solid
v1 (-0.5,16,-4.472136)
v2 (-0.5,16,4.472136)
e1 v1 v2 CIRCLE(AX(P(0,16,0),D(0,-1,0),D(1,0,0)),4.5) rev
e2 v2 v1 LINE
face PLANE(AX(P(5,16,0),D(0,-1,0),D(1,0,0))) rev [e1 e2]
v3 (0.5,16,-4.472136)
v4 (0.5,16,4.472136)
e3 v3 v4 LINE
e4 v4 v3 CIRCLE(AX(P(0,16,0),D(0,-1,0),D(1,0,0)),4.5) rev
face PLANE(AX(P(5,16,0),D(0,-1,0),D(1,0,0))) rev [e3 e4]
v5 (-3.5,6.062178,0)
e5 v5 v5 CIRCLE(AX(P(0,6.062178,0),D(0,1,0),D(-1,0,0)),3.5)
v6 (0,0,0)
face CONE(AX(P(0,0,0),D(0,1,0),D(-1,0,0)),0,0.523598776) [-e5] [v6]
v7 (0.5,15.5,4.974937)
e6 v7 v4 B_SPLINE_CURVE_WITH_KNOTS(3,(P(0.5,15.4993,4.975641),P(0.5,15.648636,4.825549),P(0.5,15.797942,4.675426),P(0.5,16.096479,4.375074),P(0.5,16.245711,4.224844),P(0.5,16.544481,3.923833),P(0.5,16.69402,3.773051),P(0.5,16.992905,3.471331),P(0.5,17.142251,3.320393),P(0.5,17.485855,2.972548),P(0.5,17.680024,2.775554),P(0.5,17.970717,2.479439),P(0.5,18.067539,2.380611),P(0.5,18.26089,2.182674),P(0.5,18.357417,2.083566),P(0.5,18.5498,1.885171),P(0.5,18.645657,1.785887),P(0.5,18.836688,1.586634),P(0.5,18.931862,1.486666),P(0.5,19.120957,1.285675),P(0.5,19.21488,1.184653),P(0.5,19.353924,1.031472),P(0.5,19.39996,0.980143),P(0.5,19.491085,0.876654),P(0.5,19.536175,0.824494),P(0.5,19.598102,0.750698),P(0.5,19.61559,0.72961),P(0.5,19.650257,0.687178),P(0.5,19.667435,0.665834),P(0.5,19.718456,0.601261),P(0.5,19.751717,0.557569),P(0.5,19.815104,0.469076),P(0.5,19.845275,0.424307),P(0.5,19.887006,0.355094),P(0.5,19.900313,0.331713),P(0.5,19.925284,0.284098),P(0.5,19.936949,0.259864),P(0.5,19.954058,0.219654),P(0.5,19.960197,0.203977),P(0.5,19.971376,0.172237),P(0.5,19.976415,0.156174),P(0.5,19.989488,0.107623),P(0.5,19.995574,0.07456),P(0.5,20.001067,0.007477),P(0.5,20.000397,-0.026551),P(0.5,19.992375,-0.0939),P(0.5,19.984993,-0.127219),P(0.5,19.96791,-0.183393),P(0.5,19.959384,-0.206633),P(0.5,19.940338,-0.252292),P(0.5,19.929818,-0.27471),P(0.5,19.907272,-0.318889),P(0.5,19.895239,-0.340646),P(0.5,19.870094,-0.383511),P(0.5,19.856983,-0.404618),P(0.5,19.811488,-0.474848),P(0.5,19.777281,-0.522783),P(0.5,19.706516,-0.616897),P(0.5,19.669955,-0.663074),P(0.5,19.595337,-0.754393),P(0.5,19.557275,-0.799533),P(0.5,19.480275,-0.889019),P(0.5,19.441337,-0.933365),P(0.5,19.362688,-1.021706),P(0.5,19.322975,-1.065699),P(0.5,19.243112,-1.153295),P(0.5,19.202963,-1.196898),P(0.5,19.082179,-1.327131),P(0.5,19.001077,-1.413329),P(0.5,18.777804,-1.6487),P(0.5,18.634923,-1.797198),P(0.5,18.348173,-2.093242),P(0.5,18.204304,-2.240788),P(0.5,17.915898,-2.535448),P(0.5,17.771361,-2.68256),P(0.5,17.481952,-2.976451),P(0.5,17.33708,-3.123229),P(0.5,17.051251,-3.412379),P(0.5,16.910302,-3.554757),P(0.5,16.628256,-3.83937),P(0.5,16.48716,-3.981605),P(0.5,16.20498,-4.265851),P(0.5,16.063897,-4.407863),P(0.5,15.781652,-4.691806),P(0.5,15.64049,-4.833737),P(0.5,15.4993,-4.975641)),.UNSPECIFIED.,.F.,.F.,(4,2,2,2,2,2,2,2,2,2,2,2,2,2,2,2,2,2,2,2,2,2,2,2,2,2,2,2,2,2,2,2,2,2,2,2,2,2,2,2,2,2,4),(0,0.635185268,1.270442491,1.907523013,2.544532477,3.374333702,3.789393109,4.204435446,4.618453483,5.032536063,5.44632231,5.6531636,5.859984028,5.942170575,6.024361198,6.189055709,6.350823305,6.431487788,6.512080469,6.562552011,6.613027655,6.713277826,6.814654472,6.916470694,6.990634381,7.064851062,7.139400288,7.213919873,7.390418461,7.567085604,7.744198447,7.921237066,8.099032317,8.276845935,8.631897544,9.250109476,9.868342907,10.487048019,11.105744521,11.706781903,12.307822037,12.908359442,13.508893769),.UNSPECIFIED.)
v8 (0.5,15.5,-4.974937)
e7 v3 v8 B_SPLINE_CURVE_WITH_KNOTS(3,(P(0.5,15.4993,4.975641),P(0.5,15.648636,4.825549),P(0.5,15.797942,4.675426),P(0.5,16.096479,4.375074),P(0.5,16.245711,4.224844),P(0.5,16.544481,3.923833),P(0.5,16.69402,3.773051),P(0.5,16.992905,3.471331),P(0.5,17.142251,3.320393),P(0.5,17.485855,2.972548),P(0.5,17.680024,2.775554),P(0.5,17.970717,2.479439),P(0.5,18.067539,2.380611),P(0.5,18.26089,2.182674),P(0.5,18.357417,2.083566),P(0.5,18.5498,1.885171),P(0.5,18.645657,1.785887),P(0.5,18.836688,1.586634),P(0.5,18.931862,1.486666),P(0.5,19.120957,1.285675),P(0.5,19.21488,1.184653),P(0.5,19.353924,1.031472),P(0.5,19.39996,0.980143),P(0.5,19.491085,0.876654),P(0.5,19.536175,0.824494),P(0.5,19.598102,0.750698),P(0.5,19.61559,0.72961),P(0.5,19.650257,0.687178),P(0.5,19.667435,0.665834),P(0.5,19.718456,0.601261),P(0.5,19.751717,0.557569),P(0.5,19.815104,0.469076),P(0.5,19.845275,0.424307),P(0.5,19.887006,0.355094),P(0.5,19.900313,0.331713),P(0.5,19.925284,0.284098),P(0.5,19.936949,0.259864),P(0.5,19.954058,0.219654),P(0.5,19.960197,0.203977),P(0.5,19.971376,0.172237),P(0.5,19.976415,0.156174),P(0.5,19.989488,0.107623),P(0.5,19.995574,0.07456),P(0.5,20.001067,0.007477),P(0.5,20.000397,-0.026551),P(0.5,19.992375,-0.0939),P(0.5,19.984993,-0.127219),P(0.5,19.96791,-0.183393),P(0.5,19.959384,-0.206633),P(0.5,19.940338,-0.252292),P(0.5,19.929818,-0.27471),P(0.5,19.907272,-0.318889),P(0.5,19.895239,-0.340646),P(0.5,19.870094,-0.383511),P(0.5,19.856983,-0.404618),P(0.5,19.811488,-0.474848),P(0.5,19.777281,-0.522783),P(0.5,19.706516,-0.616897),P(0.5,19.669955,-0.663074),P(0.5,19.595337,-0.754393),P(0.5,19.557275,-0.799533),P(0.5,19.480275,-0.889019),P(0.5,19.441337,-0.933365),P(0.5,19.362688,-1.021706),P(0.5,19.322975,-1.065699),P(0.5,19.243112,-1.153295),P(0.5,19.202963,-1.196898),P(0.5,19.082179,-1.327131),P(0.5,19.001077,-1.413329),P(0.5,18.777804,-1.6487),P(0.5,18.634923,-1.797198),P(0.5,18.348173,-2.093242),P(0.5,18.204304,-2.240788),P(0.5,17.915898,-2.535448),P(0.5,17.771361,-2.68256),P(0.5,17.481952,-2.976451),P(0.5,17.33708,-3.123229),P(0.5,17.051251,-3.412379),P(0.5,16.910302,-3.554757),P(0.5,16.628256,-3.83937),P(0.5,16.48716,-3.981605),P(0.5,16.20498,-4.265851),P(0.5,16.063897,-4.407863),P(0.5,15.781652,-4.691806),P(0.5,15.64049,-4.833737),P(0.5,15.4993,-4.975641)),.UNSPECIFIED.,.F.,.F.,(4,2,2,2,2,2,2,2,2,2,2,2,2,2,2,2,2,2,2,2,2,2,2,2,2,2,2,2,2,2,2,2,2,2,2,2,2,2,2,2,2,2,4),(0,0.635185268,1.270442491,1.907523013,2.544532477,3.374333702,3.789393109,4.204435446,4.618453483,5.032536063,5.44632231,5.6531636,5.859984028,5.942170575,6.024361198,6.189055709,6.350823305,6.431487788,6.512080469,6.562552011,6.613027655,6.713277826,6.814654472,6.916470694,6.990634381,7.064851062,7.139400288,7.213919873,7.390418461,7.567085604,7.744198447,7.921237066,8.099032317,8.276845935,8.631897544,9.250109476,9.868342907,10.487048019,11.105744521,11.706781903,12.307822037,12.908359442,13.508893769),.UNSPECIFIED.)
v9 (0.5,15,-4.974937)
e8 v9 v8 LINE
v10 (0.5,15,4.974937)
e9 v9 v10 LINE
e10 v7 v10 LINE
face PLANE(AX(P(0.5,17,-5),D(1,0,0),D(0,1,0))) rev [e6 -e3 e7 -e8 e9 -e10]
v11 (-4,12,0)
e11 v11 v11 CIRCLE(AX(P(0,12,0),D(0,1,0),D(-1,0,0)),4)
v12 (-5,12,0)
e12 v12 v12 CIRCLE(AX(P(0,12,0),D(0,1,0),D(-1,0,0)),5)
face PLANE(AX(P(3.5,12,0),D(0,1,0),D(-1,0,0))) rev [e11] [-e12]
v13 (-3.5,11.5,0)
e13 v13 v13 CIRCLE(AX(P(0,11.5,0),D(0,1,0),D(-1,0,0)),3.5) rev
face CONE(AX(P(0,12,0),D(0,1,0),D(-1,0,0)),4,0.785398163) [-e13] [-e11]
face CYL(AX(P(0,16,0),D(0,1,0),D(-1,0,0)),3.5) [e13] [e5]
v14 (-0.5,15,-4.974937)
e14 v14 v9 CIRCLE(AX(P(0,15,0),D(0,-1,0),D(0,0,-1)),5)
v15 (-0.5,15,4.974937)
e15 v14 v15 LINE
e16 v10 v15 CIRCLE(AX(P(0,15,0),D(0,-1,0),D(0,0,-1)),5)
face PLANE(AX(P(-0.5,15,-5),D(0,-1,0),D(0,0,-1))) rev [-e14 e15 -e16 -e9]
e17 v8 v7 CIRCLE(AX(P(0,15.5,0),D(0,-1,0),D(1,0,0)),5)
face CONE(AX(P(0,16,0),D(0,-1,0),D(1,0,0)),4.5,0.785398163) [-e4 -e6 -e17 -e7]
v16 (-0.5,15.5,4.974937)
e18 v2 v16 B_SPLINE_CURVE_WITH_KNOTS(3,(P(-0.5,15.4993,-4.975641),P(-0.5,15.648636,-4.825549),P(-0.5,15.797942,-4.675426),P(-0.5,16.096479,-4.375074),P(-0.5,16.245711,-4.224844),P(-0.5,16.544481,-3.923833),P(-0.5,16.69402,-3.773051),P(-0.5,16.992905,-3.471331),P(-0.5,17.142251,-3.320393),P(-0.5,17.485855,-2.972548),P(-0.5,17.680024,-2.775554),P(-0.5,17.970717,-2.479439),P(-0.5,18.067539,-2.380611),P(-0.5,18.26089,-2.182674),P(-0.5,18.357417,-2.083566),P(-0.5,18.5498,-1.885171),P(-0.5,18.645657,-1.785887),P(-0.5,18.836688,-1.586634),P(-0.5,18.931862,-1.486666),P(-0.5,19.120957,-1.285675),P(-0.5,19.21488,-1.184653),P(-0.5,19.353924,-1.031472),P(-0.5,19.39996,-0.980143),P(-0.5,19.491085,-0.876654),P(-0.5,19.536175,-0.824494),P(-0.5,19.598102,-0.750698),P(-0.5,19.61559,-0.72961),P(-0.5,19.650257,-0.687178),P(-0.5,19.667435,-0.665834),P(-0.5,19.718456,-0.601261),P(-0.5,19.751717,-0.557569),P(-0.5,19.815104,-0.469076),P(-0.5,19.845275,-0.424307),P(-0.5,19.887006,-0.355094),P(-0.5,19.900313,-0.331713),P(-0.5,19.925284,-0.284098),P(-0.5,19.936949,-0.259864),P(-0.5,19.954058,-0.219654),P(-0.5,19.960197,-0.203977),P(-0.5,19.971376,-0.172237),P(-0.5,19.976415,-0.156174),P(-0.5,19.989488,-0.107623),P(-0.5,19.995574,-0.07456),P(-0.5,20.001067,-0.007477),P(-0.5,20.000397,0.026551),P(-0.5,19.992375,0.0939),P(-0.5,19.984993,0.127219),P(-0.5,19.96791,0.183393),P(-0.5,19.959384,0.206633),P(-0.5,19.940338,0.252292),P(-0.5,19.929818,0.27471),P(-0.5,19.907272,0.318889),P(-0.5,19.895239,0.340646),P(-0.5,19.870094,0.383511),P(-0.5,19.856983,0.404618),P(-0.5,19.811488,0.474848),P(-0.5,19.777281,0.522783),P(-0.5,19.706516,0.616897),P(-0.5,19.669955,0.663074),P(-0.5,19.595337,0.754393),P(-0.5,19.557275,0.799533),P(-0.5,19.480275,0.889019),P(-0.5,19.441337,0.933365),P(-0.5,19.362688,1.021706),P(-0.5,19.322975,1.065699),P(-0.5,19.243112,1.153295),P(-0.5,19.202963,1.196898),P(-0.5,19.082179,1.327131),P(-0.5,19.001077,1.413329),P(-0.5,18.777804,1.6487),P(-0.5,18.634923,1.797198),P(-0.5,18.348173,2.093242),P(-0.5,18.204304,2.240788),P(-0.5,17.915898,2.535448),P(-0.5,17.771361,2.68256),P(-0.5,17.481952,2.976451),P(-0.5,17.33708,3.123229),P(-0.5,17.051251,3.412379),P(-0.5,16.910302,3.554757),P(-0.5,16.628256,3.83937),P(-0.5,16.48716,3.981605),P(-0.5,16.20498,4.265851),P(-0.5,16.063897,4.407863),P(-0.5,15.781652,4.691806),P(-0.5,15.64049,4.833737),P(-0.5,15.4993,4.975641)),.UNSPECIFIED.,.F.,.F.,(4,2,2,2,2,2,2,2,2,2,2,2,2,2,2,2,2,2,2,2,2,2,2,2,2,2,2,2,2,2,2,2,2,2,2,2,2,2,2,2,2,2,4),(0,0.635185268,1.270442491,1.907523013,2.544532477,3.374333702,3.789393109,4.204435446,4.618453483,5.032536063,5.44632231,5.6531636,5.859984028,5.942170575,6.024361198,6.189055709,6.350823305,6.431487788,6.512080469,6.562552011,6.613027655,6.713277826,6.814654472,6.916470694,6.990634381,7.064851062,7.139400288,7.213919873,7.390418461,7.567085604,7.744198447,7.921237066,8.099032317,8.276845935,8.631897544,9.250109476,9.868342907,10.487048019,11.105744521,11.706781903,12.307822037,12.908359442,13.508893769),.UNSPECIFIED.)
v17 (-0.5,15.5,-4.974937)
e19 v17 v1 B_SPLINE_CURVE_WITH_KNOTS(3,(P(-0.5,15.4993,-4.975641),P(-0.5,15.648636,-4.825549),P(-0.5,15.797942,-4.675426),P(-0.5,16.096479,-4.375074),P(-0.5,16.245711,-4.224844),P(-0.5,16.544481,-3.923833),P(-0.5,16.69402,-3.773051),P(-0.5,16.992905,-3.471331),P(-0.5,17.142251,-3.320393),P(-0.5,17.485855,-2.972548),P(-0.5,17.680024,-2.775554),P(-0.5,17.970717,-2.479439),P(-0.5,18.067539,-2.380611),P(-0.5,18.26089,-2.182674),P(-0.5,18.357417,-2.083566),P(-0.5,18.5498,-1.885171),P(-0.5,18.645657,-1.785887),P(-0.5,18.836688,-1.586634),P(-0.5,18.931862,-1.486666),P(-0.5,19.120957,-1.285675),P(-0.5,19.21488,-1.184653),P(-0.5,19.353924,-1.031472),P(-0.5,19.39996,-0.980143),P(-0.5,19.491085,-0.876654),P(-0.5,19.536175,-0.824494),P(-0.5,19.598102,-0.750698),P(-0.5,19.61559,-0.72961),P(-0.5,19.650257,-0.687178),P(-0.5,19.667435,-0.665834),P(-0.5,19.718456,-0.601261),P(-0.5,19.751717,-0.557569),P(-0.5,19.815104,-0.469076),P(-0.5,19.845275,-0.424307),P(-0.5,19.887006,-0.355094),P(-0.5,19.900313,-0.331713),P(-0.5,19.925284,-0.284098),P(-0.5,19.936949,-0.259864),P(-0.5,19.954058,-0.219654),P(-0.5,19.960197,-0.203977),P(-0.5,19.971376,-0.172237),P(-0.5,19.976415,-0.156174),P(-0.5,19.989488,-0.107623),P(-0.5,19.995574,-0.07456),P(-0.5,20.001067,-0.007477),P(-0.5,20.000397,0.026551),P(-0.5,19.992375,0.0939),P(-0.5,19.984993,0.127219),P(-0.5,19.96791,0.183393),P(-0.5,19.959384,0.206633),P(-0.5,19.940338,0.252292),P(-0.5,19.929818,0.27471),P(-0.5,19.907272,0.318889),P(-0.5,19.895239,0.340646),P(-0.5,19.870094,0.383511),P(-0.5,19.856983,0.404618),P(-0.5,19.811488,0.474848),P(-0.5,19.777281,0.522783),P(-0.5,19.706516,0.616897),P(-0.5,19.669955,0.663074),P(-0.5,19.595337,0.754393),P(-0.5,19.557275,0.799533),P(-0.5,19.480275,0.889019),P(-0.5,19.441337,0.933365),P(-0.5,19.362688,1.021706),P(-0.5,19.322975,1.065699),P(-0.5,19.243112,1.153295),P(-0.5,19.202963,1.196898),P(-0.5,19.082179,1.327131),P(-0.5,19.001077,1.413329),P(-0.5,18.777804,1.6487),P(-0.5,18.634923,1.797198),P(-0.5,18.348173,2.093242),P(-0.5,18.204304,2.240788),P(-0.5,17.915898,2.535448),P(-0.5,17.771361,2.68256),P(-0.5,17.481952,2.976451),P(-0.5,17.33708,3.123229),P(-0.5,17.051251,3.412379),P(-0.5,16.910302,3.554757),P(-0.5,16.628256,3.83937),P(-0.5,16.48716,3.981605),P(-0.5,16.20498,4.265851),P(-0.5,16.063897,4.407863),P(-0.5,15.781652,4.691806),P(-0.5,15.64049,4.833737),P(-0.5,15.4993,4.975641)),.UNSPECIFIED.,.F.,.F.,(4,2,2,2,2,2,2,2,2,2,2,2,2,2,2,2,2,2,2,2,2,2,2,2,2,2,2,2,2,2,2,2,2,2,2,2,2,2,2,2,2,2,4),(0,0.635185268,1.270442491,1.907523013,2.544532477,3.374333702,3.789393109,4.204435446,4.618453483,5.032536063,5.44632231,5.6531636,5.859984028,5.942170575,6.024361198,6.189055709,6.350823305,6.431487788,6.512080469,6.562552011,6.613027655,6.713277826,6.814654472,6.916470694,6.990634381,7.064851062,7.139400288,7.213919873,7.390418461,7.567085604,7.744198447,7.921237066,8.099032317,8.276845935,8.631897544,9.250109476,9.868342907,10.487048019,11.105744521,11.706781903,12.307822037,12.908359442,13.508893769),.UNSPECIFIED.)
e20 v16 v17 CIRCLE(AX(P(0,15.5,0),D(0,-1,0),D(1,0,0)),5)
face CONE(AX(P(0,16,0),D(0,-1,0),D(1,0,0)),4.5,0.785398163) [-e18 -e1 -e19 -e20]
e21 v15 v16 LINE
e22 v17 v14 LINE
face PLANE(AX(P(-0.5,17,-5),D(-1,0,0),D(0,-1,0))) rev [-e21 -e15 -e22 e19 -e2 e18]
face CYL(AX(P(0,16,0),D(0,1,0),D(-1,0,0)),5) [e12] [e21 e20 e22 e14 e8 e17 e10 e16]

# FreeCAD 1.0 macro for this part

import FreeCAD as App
import Part
import Sketcher

V = App.Vector
Q = App.Units.Quantity


def edges_at(feature, points):
    """Names of the edges that pass closest to the given points."""
    edges = feature.Shape.Edges
    near = lambda p: min(range(len(edges)), key=lambda i: edges[i].distToShape(Part.Vertex(*p))[0])
    return sorted({f"Edge{near(p) + 1}" for p in points})

doc = App.newDocument("Part")
params = doc.addObject("Spreadsheet::Sheet", "Params")
for row, (alias, value) in enumerate([
    ("sketch1_width", "5 mm"),
    ("sketch1_height", "4 mm"),
    ("sketch1_height2", "16 mm"),
    ("sketch1_length", "7 mm"),
    ("revolution_angle", "360 deg"),
    ("chamfer_size", "0.5 mm"),
    ("sketch2_width", "1 mm"),
    ("sketch2_height", "2 mm"),
    ("pocket1_length", "10 mm"),
], start=1):
    params.set(f"A{row}", alias)
    params.set(f"B{row}", "=" + value)
    params.setAlias(f"B{row}", alias)

body = doc.addObject("PartDesign::Body", "Body")

sketch1 = body.newObject("Sketcher::SketchObject", "Sketch")
sketch1.AttachmentSupport = (doc.getObject("XY_Plane"), [""])
sketch1.MapMode = "FlatFace"
sketch1.addGeometry([
    Part.LineSegment(V(0, 0, 0), V(3.5, 6.062178, 0)),
    Part.LineSegment(V(3.5, 6.062178, 0), V(3.5, 12, 0)),
    Part.LineSegment(V(3.5, 12, 0), V(5, 12, 0)),
    Part.LineSegment(V(5, 12, 0), V(5, 16, 0)),
    Part.LineSegment(V(5, 16, 0), V(0, 16, 0)),
    Part.LineSegment(V(0, 16, 0), V(0, 0, 0)),
], False)
sketch1.addConstraint([
    Sketcher.Constraint("Coincident", 0, 2, 1, 1),
    Sketcher.Constraint("Coincident", 1, 2, 2, 1),
    Sketcher.Constraint("Coincident", 2, 2, 3, 1),
    Sketcher.Constraint("Coincident", 3, 2, 4, 1),
    Sketcher.Constraint("Coincident", 4, 2, 5, 1),
    Sketcher.Constraint("Coincident", 5, 2, 0, 1),
    Sketcher.Constraint("Vertical", 1),
    Sketcher.Constraint("Horizontal", 2),
    Sketcher.Constraint("Vertical", 3),
    Sketcher.Constraint("Horizontal", 4),
    Sketcher.Constraint("Vertical", 5),
    Sketcher.Constraint("Coincident", 5, 2, -1, 1),
    Sketcher.Constraint("DistanceX", 4, 2, 4, 1, Q("5 mm")),
    Sketcher.Constraint("DistanceY", 3, 1, 3, 2, Q("4 mm")),
    Sketcher.Constraint("DistanceY", 5, 2, 5, 1, Q("16 mm")),
    Sketcher.Constraint("Angle", 0, Q("60 deg")),
    Sketcher.Constraint("Distance", 0, Q("7 mm")),
])
sketch1.setExpression("Constraints[12]", "Params.sketch1_width")
sketch1.setExpression("Constraints[13]", "Params.sketch1_height")
sketch1.setExpression("Constraints[14]", "Params.sketch1_height2")
sketch1.setExpression("Constraints[16]", "Params.sketch1_length")
revolution = body.newObject("PartDesign::Revolution", "Revolution")
revolution.Profile = sketch1
revolution.ReferenceAxis = (sketch1, ["V_Axis"])
revolution.setExpression("Angle", "Params.revolution_angle")
doc.recompute()

chamfer = body.newObject("PartDesign::Chamfer", "Chamfer")
chamfer.Base = (revolution, edges_at(revolution, [(5, 16, 0), (3.5, 12, 0)]))
chamfer.setExpression("Size", "Params.chamfer_size")

sketch2 = body.newObject("Sketcher::SketchObject", "Sketch001")
sketch2.AttachmentSupport = (doc.getObject("XY_Plane"), [""])
sketch2.MapMode = "FlatFace"
sketch2.addGeometry([
    Part.LineSegment(V(-0.5, 17, 0), V(-0.5, 15, 0)),
    Part.LineSegment(V(-0.5, 15, 0), V(0.5, 15, 0)),
    Part.LineSegment(V(0.5, 15, 0), V(0.5, 17, 0)),
    Part.LineSegment(V(0.5, 17, 0), V(-0.5, 17, 0)),
], False)
sketch2.addConstraint([
    Sketcher.Constraint("Coincident", 0, 2, 1, 1),
    Sketcher.Constraint("Coincident", 1, 2, 2, 1),
    Sketcher.Constraint("Coincident", 2, 2, 3, 1),
    Sketcher.Constraint("Coincident", 3, 2, 0, 1),
    Sketcher.Constraint("Vertical", 0),
    Sketcher.Constraint("Horizontal", 1),
    Sketcher.Constraint("Vertical", 2),
    Sketcher.Constraint("Horizontal", 3),
    Sketcher.Constraint("DistanceX", 1, 1, 1, 2, Q("1 mm")),
    Sketcher.Constraint("DistanceY", 0, 2, 0, 1, Q("2 mm")),
    Sketcher.Constraint("DistanceY", -1, 1, 0, 2, Q("15 mm")),
    Sketcher.Constraint("DistanceX", 0, 2, -1, 1, Q("0.5 mm")),
])
sketch2.setExpression("Constraints[8]", "Params.sketch2_width")
sketch2.setExpression("Constraints[9]", "Params.sketch2_height")
pocket1 = body.newObject("PartDesign::Pocket", "Pocket")
pocket1.Profile = sketch2
pocket1.setExpression("Length", "Params.pocket1_length")
pocket1.Midplane = True

doc.recompute()
